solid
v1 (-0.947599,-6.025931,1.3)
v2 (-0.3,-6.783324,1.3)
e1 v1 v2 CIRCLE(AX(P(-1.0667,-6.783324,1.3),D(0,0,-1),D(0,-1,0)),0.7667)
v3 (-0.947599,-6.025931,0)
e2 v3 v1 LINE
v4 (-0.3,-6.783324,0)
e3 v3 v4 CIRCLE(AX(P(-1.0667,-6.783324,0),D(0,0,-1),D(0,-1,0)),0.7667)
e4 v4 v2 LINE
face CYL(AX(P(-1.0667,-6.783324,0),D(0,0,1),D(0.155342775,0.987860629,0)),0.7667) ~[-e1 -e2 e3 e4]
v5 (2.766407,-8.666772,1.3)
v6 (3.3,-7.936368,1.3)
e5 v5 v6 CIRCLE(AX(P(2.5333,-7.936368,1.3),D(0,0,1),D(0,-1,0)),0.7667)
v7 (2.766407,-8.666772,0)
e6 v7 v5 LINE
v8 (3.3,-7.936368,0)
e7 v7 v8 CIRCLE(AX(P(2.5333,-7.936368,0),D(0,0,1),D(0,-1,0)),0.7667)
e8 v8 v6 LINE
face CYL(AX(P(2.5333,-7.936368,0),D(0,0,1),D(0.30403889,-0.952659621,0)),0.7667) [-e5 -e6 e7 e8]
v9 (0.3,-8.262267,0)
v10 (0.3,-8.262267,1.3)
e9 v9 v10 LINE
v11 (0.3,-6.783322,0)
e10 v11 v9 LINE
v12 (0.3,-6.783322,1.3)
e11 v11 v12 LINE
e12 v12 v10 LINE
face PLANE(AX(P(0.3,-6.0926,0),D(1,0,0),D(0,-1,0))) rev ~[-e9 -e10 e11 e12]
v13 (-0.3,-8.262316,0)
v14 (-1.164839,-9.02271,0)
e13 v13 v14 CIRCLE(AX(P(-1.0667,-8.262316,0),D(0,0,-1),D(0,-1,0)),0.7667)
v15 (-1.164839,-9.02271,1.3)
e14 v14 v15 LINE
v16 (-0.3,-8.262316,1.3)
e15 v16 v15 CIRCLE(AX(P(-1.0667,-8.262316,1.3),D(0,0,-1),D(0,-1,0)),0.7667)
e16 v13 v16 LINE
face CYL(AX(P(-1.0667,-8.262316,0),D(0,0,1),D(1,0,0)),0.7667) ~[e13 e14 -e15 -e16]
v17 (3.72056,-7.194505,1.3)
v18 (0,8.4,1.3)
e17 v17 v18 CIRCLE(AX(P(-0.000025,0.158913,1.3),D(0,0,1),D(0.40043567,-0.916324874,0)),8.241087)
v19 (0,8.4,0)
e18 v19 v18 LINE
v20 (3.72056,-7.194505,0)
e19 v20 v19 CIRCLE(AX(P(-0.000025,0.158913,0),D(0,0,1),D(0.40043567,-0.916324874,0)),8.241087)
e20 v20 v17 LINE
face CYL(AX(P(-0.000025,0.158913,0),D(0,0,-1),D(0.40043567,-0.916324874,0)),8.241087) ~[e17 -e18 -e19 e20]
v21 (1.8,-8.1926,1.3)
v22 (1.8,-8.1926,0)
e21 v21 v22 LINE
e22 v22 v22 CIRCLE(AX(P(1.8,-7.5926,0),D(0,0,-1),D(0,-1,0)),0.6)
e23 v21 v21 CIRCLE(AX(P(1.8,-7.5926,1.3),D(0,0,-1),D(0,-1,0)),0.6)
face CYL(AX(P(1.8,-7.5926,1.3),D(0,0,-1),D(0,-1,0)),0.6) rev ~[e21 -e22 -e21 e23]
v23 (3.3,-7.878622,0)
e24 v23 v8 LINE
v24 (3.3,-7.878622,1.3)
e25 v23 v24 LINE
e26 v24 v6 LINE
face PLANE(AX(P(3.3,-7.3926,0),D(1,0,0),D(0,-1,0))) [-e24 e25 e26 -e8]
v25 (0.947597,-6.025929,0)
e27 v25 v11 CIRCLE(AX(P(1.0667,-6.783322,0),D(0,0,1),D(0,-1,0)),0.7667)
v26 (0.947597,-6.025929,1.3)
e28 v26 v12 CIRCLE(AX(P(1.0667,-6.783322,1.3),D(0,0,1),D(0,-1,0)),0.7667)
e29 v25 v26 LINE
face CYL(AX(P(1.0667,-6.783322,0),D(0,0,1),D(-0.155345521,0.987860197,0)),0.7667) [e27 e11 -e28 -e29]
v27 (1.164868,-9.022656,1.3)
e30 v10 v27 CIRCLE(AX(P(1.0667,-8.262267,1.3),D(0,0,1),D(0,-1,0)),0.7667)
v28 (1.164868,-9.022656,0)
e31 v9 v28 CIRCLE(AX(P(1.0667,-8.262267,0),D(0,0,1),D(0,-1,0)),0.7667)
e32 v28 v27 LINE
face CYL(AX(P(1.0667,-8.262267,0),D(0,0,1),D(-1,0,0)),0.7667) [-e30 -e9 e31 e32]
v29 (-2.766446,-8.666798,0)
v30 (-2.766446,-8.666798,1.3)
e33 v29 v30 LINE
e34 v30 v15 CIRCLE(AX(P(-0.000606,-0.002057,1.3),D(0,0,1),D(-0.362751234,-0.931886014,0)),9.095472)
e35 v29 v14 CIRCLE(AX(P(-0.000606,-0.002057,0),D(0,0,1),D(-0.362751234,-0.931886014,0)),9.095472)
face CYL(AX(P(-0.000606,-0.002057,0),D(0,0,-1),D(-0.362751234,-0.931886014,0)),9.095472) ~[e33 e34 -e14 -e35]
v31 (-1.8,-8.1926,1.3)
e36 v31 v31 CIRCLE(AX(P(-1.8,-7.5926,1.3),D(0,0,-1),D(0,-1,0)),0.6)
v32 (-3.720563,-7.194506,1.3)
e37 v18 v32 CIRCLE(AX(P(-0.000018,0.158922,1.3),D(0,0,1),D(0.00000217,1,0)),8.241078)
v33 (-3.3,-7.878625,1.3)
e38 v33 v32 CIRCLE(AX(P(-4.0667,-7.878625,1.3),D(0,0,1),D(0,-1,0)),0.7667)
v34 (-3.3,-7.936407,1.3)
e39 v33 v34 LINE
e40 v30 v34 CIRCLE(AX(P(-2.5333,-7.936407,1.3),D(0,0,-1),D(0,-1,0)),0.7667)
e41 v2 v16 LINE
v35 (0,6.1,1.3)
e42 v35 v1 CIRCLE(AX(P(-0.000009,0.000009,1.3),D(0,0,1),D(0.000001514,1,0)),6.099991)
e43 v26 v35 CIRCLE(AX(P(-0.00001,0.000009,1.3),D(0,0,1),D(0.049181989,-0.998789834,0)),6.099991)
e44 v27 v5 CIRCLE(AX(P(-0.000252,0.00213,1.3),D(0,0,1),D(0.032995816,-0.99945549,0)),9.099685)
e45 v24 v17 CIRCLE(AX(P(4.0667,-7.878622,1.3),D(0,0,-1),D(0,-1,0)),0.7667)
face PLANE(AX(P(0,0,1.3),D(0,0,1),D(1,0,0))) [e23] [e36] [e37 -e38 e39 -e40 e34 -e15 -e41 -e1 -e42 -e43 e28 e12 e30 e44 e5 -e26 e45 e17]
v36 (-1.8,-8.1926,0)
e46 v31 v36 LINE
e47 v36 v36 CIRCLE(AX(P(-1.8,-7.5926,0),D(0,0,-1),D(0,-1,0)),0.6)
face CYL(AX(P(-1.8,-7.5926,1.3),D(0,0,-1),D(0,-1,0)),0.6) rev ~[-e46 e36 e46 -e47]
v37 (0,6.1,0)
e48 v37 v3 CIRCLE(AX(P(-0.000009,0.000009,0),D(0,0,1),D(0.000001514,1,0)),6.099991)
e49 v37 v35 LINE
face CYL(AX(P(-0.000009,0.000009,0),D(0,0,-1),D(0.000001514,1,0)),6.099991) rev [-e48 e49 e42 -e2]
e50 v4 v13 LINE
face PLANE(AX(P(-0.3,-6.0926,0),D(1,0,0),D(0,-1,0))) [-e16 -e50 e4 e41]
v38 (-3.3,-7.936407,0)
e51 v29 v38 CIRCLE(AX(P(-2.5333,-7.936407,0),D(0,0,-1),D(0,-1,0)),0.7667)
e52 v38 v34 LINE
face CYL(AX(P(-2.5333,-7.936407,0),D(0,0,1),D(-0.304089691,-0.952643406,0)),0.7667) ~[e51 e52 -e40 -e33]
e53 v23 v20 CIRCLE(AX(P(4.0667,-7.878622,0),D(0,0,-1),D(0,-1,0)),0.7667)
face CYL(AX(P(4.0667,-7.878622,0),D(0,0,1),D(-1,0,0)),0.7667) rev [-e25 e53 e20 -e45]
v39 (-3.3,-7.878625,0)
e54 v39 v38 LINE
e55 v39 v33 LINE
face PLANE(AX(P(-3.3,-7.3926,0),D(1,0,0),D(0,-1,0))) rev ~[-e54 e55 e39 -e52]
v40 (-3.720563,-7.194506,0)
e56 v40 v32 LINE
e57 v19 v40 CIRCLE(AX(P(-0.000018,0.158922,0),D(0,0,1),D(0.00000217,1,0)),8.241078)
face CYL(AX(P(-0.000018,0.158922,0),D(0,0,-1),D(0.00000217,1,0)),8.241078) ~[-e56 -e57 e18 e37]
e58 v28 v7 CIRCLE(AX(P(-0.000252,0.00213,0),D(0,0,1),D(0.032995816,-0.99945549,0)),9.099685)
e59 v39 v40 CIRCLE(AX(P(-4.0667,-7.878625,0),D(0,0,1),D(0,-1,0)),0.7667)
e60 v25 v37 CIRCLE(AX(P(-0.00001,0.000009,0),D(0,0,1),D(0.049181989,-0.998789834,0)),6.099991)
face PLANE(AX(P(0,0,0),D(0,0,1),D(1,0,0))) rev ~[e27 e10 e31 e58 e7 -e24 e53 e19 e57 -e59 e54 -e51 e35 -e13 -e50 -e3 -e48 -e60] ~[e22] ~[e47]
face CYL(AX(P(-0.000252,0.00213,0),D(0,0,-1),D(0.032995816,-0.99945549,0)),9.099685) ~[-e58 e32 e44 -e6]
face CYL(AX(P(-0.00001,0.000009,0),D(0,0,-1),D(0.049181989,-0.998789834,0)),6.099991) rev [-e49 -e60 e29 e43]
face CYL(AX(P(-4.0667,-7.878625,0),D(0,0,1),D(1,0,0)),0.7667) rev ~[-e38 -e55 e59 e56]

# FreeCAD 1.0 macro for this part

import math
import FreeCAD as App
import Part
import Sketcher
Q = App.Units.Quantity


def edges_at(feature, points):
    """Names of the edges that pass closest to the given points."""
    edges = feature.Shape.Edges
    near = lambda p: min(range(len(edges)), key=lambda i: edges[i].distToShape(Part.Vertex(*p))[0])
    return sorted({f"Edge{near(p) + 1}" for p in points})

doc = App.newDocument("Part")
body = doc.addObject("PartDesign::Body", "Body")

# Sketch on XY plane
sketch1 = body.newObject("Sketcher::SketchObject", "Sketch")
sketch1.AttachmentSupport = (doc.getObject("XY_Plane"), [""])
sketch1.MapMode = "FlatFace"
sketch1.addGeometry([
    Part.ArcOfCircle(Part.Circle(App.Vector(0, 0, 0), App.Vector(0, 0, 1), 6.099982), math.radians(90), math.radians(267.181029)),  # 0
    Part.ArcOfCircle(Part.Circle(App.Vector(0, 0, 0), App.Vector(0, 0, 1), 6.1), math.radians(-87.181029), math.radians(90)),  # 1
    Part.LineSegment(App.Vector(0.3, -6.0926, 0), App.Vector(0.3, -9.0926, 0)),  # 2
    Part.ArcOfCircle(Part.Circle(App.Vector(-0.000252, 0.00213, 0), App.Vector(0, 0, 1), 9.099685), math.radians(-88.109136), math.radians(-68.735275)),  # 3
    Part.LineSegment(App.Vector(3.3, -8.478, 0), App.Vector(3.3, -7.3926, 0)),  # 4
    Part.ArcOfCircle(Part.Circle(App.Vector(0, 0.1589, 0), App.Vector(0, 0, 1), 8.2411), math.radians(-66.394707), math.radians(90)),  # 5
    Part.ArcOfCircle(Part.Circle(App.Vector(0, 0.1589, 0), App.Vector(0, 0, 1), 8.241065), math.radians(90), math.radians(246.394707)),  # 6
    Part.LineSegment(App.Vector(-3.3, -7.3926, 0), App.Vector(-3.3, -8.478, 0)),  # 7
    Part.ArcOfCircle(Part.Circle(App.Vector(-0.000606, -0.002057, 0), App.Vector(0, 0, 1), 9.095472), math.radians(-111.269255), math.radians(-91.886334)),  # 8
    Part.LineSegment(App.Vector(-0.3, -9.0926, 0), App.Vector(-0.3, -6.0926, 0)),  # 9
], False)
sketch1.addConstraint([
    Sketcher.Constraint("Tangent", 0, 1, 1, 2),
    Sketcher.Constraint("Coincident", 1, 1, 2, 1),
    Sketcher.Constraint("Coincident", 2, 2, 3, 1),
    Sketcher.Constraint("Coincident", 3, 2, 4, 1),
    Sketcher.Constraint("Coincident", 4, 2, 5, 1),
    Sketcher.Constraint("Tangent", 5, 2, 6, 1),
    Sketcher.Constraint("Coincident", 6, 2, 7, 1),
    Sketcher.Constraint("Coincident", 7, 2, 8, 1),
    Sketcher.Constraint("Coincident", 8, 2, 9, 1),
    Sketcher.Constraint("Coincident", 9, 2, 0, 2),
    Sketcher.Constraint("Vertical", 2),
    Sketcher.Constraint("Vertical", 4),
    Sketcher.Constraint("Vertical", 7),
    Sketcher.Constraint("Vertical", 9),
    Sketcher.Constraint("Coincident", 0, 3, -1, 1),
    Sketcher.Constraint("Equal", 0, 1),
    Sketcher.Constraint("Equal", 5, 6),
    Sketcher.Constraint("Symmetric", 4, 2, 6, 2, -2),
    Sketcher.Constraint("Symmetric", 2, 2, 8, 2, -2),
    Sketcher.Constraint("Symmetric", 3, 3, 8, 3, -1),
    Sketcher.Constraint("PointOnObject", 0, 1, -2),
    Sketcher.Constraint("PointOnObject", 5, 2, -2),
    Sketcher.Constraint("Horizontal", 3, 2, 7, 2),
    Sketcher.Constraint("Radius", 0, Q("6.1 mm")),
    Sketcher.Constraint("DistanceY", 2, 2, 2, 1, Q("3 mm")),
    Sketcher.Constraint("DistanceX", 2, 2, 3, 2, Q("3 mm")),
    Sketcher.Constraint("DistanceX", -1, 1, 1, 1, Q("0.3 mm")),
    Sketcher.Constraint("DistanceY", 4, 2, 1, 1, Q("1.3 mm")),
    Sketcher.Constraint("DistanceY", 0, 1, 5, 2, Q("2.3 mm")),
    Sketcher.Constraint("Radius", 3, Q("9.0997 mm")),
])
pad1 = body.newObject("PartDesign::Pad", "Pad")
pad1.Profile = sketch1
pad1.Length = 1.3

# Sketch on XY plane
sketch2 = body.newObject("Sketcher::SketchObject", "Sketch001")
sketch2.AttachmentSupport = (doc.getObject("XY_Plane"), [""])
sketch2.MapMode = "FlatFace"
sketch2.AttachmentOffset = App.Placement(App.Vector(0, 0, 1.3), App.Rotation())
sketch2.addGeometry([
    Part.Circle(App.Vector(-1.8, -7.6, 0), App.Vector(0, 0, 1), 0.6),
    Part.Circle(App.Vector(1.8, -7.6, 0), App.Vector(0, 0, 1), 0.6),
], False)
sketch2.addConstraint([
    Sketcher.Constraint("Equal", 0, 1),
    Sketcher.Constraint("Symmetric", 0, 3, 1, 3, -2),
    Sketcher.Constraint("Diameter", 0, Q("1.2 mm")),
    Sketcher.Constraint("DistanceX", 0, 3, -1, 1, Q("1.8 mm")),
    Sketcher.Constraint("DistanceY", 0, 3, -1, 1, Q("7.5926 mm")),
])
doc.recompute()
hole = body.newObject("PartDesign::Hole", "Hole")
hole.Profile = sketch2
hole.ThreadType = "None"
hole.Diameter = 1.2
hole.DepthType = "ThroughAll"
doc.recompute()

fillet = body.newObject("PartDesign::Fillet", "Fillet")
fillet.Base = (hole, edges_at(hole, [
    (0.3, -6.093, 0.65),
    (-0.3, -6.093, 0.65),
    (0.3, -9.093, 0.65),
    (3.3, -8.478, 0.65),
    (-3.3, -8.478, 0.65),
    (-3.3, -7.393, 0.65),
    (-0.3, -9.093, 0.65),
    (3.3, -7.393, 0.65),
]))
fillet.Radius = 0.7667

doc.recompute()
